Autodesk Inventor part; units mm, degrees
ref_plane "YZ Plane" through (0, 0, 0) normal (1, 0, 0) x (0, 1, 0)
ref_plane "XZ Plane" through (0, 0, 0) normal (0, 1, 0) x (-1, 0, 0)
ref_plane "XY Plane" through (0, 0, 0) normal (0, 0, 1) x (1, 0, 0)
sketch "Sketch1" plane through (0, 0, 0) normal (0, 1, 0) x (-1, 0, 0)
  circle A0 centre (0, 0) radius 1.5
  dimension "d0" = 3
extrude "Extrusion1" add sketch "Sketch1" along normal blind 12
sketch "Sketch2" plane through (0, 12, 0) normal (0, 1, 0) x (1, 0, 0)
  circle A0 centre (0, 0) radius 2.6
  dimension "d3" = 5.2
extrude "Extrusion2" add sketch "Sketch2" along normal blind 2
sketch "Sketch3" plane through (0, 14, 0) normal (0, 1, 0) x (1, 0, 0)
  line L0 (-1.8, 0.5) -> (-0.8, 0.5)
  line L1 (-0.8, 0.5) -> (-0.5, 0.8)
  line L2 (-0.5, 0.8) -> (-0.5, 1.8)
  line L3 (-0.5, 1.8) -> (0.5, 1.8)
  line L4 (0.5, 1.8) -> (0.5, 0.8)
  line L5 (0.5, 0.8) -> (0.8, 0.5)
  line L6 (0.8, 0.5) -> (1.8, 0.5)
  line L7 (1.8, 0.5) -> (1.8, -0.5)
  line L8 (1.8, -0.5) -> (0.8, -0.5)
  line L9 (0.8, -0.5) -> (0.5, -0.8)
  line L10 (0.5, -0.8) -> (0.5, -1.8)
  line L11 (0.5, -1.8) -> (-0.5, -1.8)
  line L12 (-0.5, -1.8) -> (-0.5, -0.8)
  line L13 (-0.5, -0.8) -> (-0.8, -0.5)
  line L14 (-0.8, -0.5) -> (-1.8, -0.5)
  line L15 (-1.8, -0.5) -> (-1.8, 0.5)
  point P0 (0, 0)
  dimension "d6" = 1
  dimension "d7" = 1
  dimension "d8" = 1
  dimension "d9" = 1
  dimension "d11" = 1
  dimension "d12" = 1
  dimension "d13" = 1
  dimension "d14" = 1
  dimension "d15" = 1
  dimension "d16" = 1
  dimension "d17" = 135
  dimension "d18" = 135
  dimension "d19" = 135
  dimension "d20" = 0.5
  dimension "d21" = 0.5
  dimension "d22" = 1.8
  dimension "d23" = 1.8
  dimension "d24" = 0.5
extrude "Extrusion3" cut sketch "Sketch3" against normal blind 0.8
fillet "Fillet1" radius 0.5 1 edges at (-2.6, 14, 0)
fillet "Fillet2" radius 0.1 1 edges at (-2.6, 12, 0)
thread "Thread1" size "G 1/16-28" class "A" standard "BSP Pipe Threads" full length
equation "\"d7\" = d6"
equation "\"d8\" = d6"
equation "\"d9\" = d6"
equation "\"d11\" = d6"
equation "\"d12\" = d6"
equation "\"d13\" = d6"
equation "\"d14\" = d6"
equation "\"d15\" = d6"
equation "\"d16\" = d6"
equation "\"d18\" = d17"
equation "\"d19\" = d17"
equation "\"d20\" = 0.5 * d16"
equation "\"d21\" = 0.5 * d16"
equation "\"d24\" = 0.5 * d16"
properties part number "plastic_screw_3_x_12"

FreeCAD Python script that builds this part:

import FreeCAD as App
import Part
import Sketcher

V = App.Vector
Q = App.Units.Quantity


def edges_at(feature, points):
    """Names of the edges that pass closest to the given points."""
    edges = feature.Shape.Edges
    near = lambda p: min(range(len(edges)), key=lambda i: edges[i].distToShape(Part.Vertex(*p))[0])
    return sorted({f"Edge{near(p) + 1}" for p in points})


def add_polygon(sketch, points):
    """Adds a closed chain of lines whose ends are joined by coincident constraints."""
    first, n = sketch.GeometryCount, len(points)
    for a, b in zip(points, points[1:] + points[:1]):
        sketch.addGeometry(Part.LineSegment(App.Vector(*a, 0), App.Vector(*b, 0)), False)
    for i in range(n):
        sketch.addConstraint(Sketcher.Constraint("Coincident", first + i, 2, first + (i + 1) % n, 1))

doc = App.newDocument("Part")
body = doc.addObject("PartDesign::Body", "Body")

# Sketch on XZ plane
sketch1 = body.newObject("Sketcher::SketchObject", "Sketch")
sketch1.AttachmentSupport = (doc.getObject("XZ_Plane"), [""])
sketch1.MapMode = "FlatFace"
sketch1.addGeometry(Part.Circle(V(0, 0, 0), V(0, 0, 1), 1.5), False)
sketch1.addConstraint(Sketcher.Constraint("Coincident", 0, 3, -1, 1))
sketch1.addConstraint(Sketcher.Constraint("Diameter", 0, Q("3 mm")))
pad1 = body.newObject("PartDesign::Pad", "Pad")
pad1.Profile = sketch1
pad1.Length = 12
pad1.Reversed = True

# Sketch on XZ plane
sketch2 = body.newObject("Sketcher::SketchObject", "Sketch001")
sketch2.AttachmentSupport = (doc.getObject("XZ_Plane"), [""])
sketch2.MapMode = "FlatFace"
sketch2.AttachmentOffset = App.Placement(V(0, 0, -12), App.Rotation())
sketch2.addGeometry(Part.Circle(V(0, 0, 0), V(0, 0, 1), 2.6), False)
sketch2.addConstraint(Sketcher.Constraint("Coincident", 0, 3, -1, 1))
sketch2.addConstraint(Sketcher.Constraint("Diameter", 0, Q("5.2 mm")))
pad2 = body.newObject("PartDesign::Pad", "Pad001")
pad2.Profile = sketch2
pad2.Length = 2
pad2.Reversed = True

# Sketch on XZ plane
sketch3 = body.newObject("Sketcher::SketchObject", "Sketch002")
sketch3.AttachmentSupport = (doc.getObject("XZ_Plane"), [""])
sketch3.MapMode = "FlatFace"
sketch3.AttachmentOffset = App.Placement(V(0, 0, -14), App.Rotation())
add_polygon(sketch3, [(-0.8, -0.5), (-1.8, -0.5), (-1.8, 0.5), (-0.8, 0.5), (-0.5, 0.8), (-0.5, 1.8), (0.5, 1.8), (0.5, 0.8), (0.8, 0.5), (1.8, 0.5), (1.8, -0.5), (0.8, -0.5), (0.5, -0.8), (0.5, -1.8), (-0.5, -1.8), (-0.5, -0.8)])  # lines 0-15
sketch3.addConstraint(Sketcher.Constraint("Horizontal", 0))
sketch3.addConstraint(Sketcher.Constraint("Vertical", 1))
sketch3.addConstraint(Sketcher.Constraint("Horizontal", 2))
sketch3.addConstraint(Sketcher.Constraint("Vertical", 4))
sketch3.addConstraint(Sketcher.Constraint("Horizontal", 5))
sketch3.addConstraint(Sketcher.Constraint("Vertical", 6))
sketch3.addConstraint(Sketcher.Constraint("Horizontal", 8))
sketch3.addConstraint(Sketcher.Constraint("Vertical", 9))
sketch3.addConstraint(Sketcher.Constraint("Horizontal", 10))
sketch3.addConstraint(Sketcher.Constraint("Vertical", 12))
sketch3.addConstraint(Sketcher.Constraint("Horizontal", 13))
sketch3.addConstraint(Sketcher.Constraint("Vertical", 14))
sketch3.addConstraint(Sketcher.Constraint("Symmetric", 0, 2, 8, 2, -1, 1))
sketch3.addConstraint(Sketcher.Constraint("Symmetric", 2, 2, 10, 2, -1, 1))
sketch3.addConstraint(Sketcher.Constraint("Symmetric", 3, 2, 11, 2, -1, 1))
sketch3.addConstraint(Sketcher.Constraint("Symmetric", 5, 2, 13, 2, -1, 1))
sketch3.addConstraint(Sketcher.Constraint("Symmetric", 3, 2, 6, 2, -2))
sketch3.addConstraint(Sketcher.Constraint("Symmetric", 2, 2, 7, 2, -2))
sketch3.addConstraint(Sketcher.Constraint("Perpendicular", 3, 7))
sketch3.addConstraint(Sketcher.Constraint("Perpendicular", 11, 15))
sketch3.addConstraint(Sketcher.Constraint("Horizontal", 11, 2, 14, 2))
sketch3.addConstraint(Sketcher.Constraint("Equal", 2, 5))
sketch3.addConstraint(Sketcher.Constraint("Equal", 13, 1))
sketch3.addConstraint(Sketcher.Constraint("Equal", 1, 4))
sketch3.addConstraint(Sketcher.Constraint("DistanceX", 0, 2, 0, 1, Q("1 mm")))
sketch3.addConstraint(Sketcher.Constraint("DistanceX", 0, 2, -1, 1, Q("1.8 mm")))
pocket1 = body.newObject("PartDesign::Pocket", "Pocket")
pocket1.Profile = sketch3
pocket1.Length = 0.8
pocket1.Reversed = True
doc.recompute()

fillet = body.newObject("PartDesign::Fillet", "Fillet")
fillet.Base = (pocket1, edges_at(pocket1, [(-2.6, 14, 0)]))
fillet.Radius = 0.5
doc.recompute()

fillet2 = body.newObject("PartDesign::Fillet", "Fillet001")
fillet2.Base = (fillet, edges_at(fillet, [(-2.6, 12, 0)]))
fillet2.Radius = 0.1

doc.recompute()
